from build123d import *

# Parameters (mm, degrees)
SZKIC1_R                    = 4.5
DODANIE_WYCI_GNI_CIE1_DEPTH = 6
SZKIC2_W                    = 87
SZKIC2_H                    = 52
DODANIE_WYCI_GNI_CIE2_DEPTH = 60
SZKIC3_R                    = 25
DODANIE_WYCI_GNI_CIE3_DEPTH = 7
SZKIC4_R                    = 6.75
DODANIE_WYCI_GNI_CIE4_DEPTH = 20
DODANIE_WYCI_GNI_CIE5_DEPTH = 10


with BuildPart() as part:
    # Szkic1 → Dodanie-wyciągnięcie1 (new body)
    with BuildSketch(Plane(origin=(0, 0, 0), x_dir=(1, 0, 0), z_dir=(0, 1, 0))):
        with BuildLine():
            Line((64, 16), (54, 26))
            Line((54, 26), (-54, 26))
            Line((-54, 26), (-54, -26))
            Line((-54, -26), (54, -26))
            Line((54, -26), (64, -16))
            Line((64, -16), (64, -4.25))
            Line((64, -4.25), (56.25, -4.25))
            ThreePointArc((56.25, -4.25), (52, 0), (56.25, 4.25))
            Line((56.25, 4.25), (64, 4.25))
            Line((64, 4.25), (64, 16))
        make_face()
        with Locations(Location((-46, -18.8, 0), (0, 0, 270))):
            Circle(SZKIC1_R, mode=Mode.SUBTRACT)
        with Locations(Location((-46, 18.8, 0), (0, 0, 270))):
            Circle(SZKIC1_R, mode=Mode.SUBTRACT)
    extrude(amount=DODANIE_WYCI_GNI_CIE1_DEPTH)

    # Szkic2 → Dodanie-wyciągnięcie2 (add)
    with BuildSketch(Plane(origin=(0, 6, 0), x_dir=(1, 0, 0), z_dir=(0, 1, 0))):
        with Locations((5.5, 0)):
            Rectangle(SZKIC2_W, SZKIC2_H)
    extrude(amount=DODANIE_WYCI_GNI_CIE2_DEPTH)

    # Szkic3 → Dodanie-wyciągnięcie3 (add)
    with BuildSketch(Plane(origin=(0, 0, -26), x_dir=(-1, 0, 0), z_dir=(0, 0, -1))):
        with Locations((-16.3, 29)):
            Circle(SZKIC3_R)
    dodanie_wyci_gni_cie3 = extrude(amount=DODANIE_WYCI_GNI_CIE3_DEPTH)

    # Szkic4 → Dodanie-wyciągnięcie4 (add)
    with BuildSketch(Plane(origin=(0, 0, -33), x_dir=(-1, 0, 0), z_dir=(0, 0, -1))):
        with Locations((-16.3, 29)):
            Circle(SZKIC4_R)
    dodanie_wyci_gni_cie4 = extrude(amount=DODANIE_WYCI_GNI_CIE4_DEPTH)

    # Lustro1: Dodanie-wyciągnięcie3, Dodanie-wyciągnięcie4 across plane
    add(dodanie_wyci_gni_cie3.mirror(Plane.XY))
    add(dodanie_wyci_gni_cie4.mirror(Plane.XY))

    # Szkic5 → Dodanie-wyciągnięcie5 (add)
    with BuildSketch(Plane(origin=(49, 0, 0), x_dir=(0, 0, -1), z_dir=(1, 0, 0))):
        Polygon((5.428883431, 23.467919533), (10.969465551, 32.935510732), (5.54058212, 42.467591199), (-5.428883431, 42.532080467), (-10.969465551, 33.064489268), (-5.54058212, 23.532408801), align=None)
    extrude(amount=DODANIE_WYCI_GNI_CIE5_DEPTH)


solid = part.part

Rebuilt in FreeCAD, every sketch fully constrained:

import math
import FreeCAD as App
import Part
import Sketcher
from FreeCAD import Vector

doc = App.newDocument("Part")
params = doc.addObject("Spreadsheet::Sheet", "Params")
for row, (alias, value) in enumerate([
    ("sketch1_diameter", "9 mm"),
    ("sketch1_width", "108 mm"),
    ("sketch1_height", "52 mm"),
    ("sketch1_radius", "4.25 mm"),
    ("sketch1_width2", "7.75 mm"),
    ("pad1_length", "6 mm"),
    ("sketch2_width", "87 mm"),
    ("sketch2_height", "52 mm"),
    ("pad2_length", "60 mm"),
    ("sketch3_diameter", "50 mm"),
    ("pad3_length", "7 mm"),
    ("sketch4_diameter", "13.5 mm"),
    ("pad4_length", "20 mm"),
    ("pad5_length", "10 mm"),
], start=1):
    params.set(f"A{row}", alias)
    params.set(f"B{row}", "=" + value)
    params.setAlias(f"B{row}", alias)

body = doc.addObject("PartDesign::Body", "Body")

sketch1 = body.newObject("Sketcher::SketchObject", "Sketch")
sketch1.AttachmentSupport = (doc.getObject("XZ_Plane"), [""])
sketch1.MapMode = "FlatFace"
sketch1.addGeometry([
    Part.LineSegment(Vector(64, -16, 0), Vector(54, -26, 0)),
    Part.LineSegment(Vector(54, -26, 0), Vector(-54, -26, 0)),
    Part.LineSegment(Vector(-54, -26, 0), Vector(-54, 26, 0)),
    Part.LineSegment(Vector(-54, 26, 0), Vector(54, 26, 0)),
    Part.LineSegment(Vector(54, 26, 0), Vector(64, 16, 0)),
    Part.LineSegment(Vector(64, 16, 0), Vector(64, 4.2, 0)),
    Part.LineSegment(Vector(64, 4.2, 0), Vector(56.2, 4.2, 0)),
    Part.ArcOfCircle(Part.Circle(Vector(56.2, 0, 0), Vector(0, 0, 1), 4.2), math.radians(90), math.radians(270)),
    Part.LineSegment(Vector(56.2, -4.2, 0), Vector(64, -4.2, 0)),
    Part.LineSegment(Vector(64, -4.2, 0), Vector(64, -16, 0)),
    Part.Circle(Vector(-46, 18.8, 0), Vector(0, 0, 1), 4.5),
    Part.Circle(Vector(-46, -18.8, 0), Vector(0, 0, 1), 4.5),
], False)
sketch1.addConstraint([
    Sketcher.Constraint("Coincident", 0, 2, 1, 1),
    Sketcher.Constraint("Coincident", 1, 2, 2, 1),
    Sketcher.Constraint("Coincident", 2, 2, 3, 1),
    Sketcher.Constraint("Coincident", 3, 2, 4, 1),
    Sketcher.Constraint("Coincident", 4, 2, 5, 1),
    Sketcher.Constraint("Coincident", 5, 2, 6, 1),
    Sketcher.Constraint("Tangent", 6, 2, 7, 1),
    Sketcher.Constraint("Tangent", 7, 2, 8, 1),
    Sketcher.Constraint("Coincident", 8, 2, 9, 1),
    Sketcher.Constraint("Coincident", 9, 2, 0, 1),
    Sketcher.Constraint("Horizontal", 1),
    Sketcher.Constraint("Vertical", 2),
    Sketcher.Constraint("Horizontal", 3),
    Sketcher.Constraint("Vertical", 5),
    Sketcher.Constraint("Horizontal", 6),
    Sketcher.Constraint("Horizontal", 8),
    Sketcher.Constraint("Vertical", 9),
    Sketcher.Constraint("Equal", 10, 11),
    Sketcher.Constraint("Symmetric", 0, 2, 2, 2, -1, 1),
    Sketcher.Constraint("Symmetric", 10, 3, 11, 3, -1),
    Sketcher.Constraint("Symmetric", 5, 2, 8, 2, -1),
    Sketcher.Constraint("Perpendicular", 0, 4),
    Sketcher.Constraint("Vertical", 0, 2, 3, 2),
    Sketcher.Constraint("Equal", 5, 9),
    Sketcher.Constraint("Diameter", 10, 9.0),
    Sketcher.Constraint("DistanceX", 1, 2, 1, 1, 108.0),
    Sketcher.Constraint("DistanceY", 2, 1, 2, 2, 52.0),
    Sketcher.Constraint("Radius", 7, 4.25),
    Sketcher.Constraint("DistanceX", 10, 3, -1, 1, 46.0),
    Sketcher.Constraint("DistanceX", -1, 1, 4, 2, 64.0),
    Sketcher.Constraint("DistanceX", 6, 2, 6, 1, 7.75),
    Sketcher.Constraint("DistanceY", -1, 1, 10, 3, 18.8),
])
sketch1.setExpression("Constraints[24]", "Params.sketch1_diameter")
sketch1.setExpression("Constraints[25]", "Params.sketch1_width")
sketch1.setExpression("Constraints[26]", "Params.sketch1_height")
sketch1.setExpression("Constraints[27]", "Params.sketch1_radius")
sketch1.setExpression("Constraints[30]", "Params.sketch1_width2")
pad1 = body.newObject("PartDesign::Pad", "Pad")
pad1.Profile = sketch1
pad1.setExpression("Length", "Params.pad1_length")
pad1.Reversed = True

sketch2 = body.newObject("Sketcher::SketchObject", "Sketch001")
sketch2.AttachmentSupport = (doc.getObject("XZ_Plane"), [""])
sketch2.MapMode = "FlatFace"
sketch2.AttachmentOffset = App.Placement(Vector(0, 0, -6), App.Rotation())
sketch2.addGeometry([
    Part.LineSegment(Vector(-38, -26, 0), Vector(-38, 26, 0)),
    Part.LineSegment(Vector(-38, 26, 0), Vector(49, 26, 0)),
    Part.LineSegment(Vector(49, 26, 0), Vector(49, -26, 0)),
    Part.LineSegment(Vector(49, -26, 0), Vector(-38, -26, 0)),
], False)
sketch2.addConstraint([
    Sketcher.Constraint("Coincident", 0, 2, 1, 1),
    Sketcher.Constraint("Coincident", 1, 2, 2, 1),
    Sketcher.Constraint("Coincident", 2, 2, 3, 1),
    Sketcher.Constraint("Coincident", 3, 2, 0, 1),
    Sketcher.Constraint("Vertical", 0),
    Sketcher.Constraint("Horizontal", 1),
    Sketcher.Constraint("Vertical", 2),
    Sketcher.Constraint("Horizontal", 3),
    Sketcher.Constraint("DistanceX", 1, 1, 1, 2, 87.0),
    Sketcher.Constraint("DistanceY", 0, 1, 0, 2, 52.0),
    Sketcher.Constraint("DistanceX", 0, 2, -1, 1, 38.0),
    Sketcher.Constraint("DistanceY", -1, 1, 0, 2, 26.0),
])
sketch2.setExpression("Constraints[8]", "Params.sketch2_width")
sketch2.setExpression("Constraints[9]", "Params.sketch2_height")
pad2 = body.newObject("PartDesign::Pad", "Pad001")
pad2.Profile = sketch2
pad2.setExpression("Length", "Params.pad2_length")
pad2.Reversed = True

sketch3 = body.newObject("Sketcher::SketchObject", "Sketch002")
sketch3.AttachmentSupport = (doc.getObject("XY_Plane"), [""])
sketch3.MapMode = "FlatFace"
sketch3.AttachmentOffset = App.Placement(Vector(0, 0, -26), App.Rotation())
sketch3.addGeometry(Part.Circle(Vector(16, 29, 0), Vector(0, 0, 1), 25), False)
sketch3.addConstraint([
    Sketcher.Constraint("Diameter", 0, 50.0),
    Sketcher.Constraint("DistanceY", -1, 1, 0, 3, 29.0),
    Sketcher.Constraint("DistanceX", -1, 1, 0, 3, 16.3),
])
sketch3.setExpression("Constraints[0]", "Params.sketch3_diameter")
pad3 = body.newObject("PartDesign::Pad", "Pad002")
pad3.Profile = sketch3
pad3.setExpression("Length", "Params.pad3_length")
pad3.Reversed = True

sketch4 = body.newObject("Sketcher::SketchObject", "Sketch003")
sketch4.AttachmentSupport = (doc.getObject("XY_Plane"), [""])
sketch4.MapMode = "FlatFace"
sketch4.AttachmentOffset = App.Placement(Vector(0, 0, -33), App.Rotation())
sketch4.addGeometry(Part.Circle(Vector(16, 29, 0), Vector(0, 0, 1), 7), False)
sketch4.addConstraint([
    Sketcher.Constraint("Diameter", 0, 13.5),
    Sketcher.Constraint("DistanceY", -1, 1, 0, 3, 29.0),
    Sketcher.Constraint("DistanceX", -1, 1, 0, 3, 16.3),
])
sketch4.setExpression("Constraints[0]", "Params.sketch4_diameter")
pad4 = body.newObject("PartDesign::Pad", "Pad003")
pad4.Profile = sketch4
pad4.setExpression("Length", "Params.pad4_length")
pad4.Reversed = True
doc.recompute()

mirrored = body.newObject("PartDesign::Mirrored", "Mirrored")
mirrored.Originals = [pad3, pad4]
mirrored.MirrorPlane = (doc.getObject("XY_Plane"), [""])
body.Tip = mirrored

sketch5 = body.newObject("Sketcher::SketchObject", "Sketch004")
sketch5.AttachmentSupport = (doc.getObject("YZ_Plane"), [""])
sketch5.MapMode = "FlatFace"
sketch5.AttachmentOffset = App.Placement(Vector(0, 0, 49), App.Rotation())
sketch5.addGeometry([
    Part.LineSegment(Vector(23.46792, -5.428883, 0), Vector(32.935511, -10.969466, 0)),
    Part.LineSegment(Vector(32.935511, -10.969466, 0), Vector(42.467591, -5.540582, 0)),
    Part.LineSegment(Vector(42.467591, -5.540582, 0), Vector(42.53208, 5.428883, 0)),
    Part.LineSegment(Vector(42.53208, 5.428883, 0), Vector(33.064489, 10.969466, 0)),
    Part.LineSegment(Vector(33.064489, 10.969466, 0), Vector(23.532409, 5.540582, 0)),
    Part.LineSegment(Vector(23.532409, 5.540582, 0), Vector(23.46792, -5.428883, 0)),
], False)
sketch5.addConstraint([
    Sketcher.Constraint("Coincident", 0, 2, 1, 1),
    Sketcher.Constraint("Coincident", 1, 2, 2, 1),
    Sketcher.Constraint("Coincident", 2, 2, 3, 1),
    Sketcher.Constraint("Coincident", 3, 2, 4, 1),
    Sketcher.Constraint("Coincident", 4, 2, 5, 1),
    Sketcher.Constraint("Coincident", 5, 2, 0, 1),
    Sketcher.Constraint("DistanceX", 3, 2, 1, 2, 9.403102),
    Sketcher.Constraint("DistanceY", 2, 2, 4, 2, 0.111699),
    Sketcher.Constraint("DistanceX", 4, 2, 0, 2, 9.403102),
    Sketcher.Constraint("DistanceY", 1, 2, 5, 2, 0.111699),
    Sketcher.Constraint("DistanceX", -1, 1, 0, 2, 32.935511),
    Sketcher.Constraint("DistanceX", -1, 1, 1, 2, 42.467591),
    Sketcher.Constraint("DistanceX", -1, 1, 2, 2, 42.53208),
    Sketcher.Constraint("DistanceX", -1, 1, 5, 2, 23.46792),
    Sketcher.Constraint("DistanceY", 0, 2, 2, 2, 16.398349),
    Sketcher.Constraint("DistanceY", 0, 2, 3, 2, 21.938931),
    Sketcher.Constraint("DistanceY", 5, 2, 3, 2, 16.398349),
    Sketcher.Constraint("DistanceY", 0, 2, -1, 1, 10.969466),
])
pad5 = body.newObject("PartDesign::Pad", "Pad004")
pad5.Profile = sketch5
pad5.setExpression("Length", "Params.pad5_length")

doc.recompute()
